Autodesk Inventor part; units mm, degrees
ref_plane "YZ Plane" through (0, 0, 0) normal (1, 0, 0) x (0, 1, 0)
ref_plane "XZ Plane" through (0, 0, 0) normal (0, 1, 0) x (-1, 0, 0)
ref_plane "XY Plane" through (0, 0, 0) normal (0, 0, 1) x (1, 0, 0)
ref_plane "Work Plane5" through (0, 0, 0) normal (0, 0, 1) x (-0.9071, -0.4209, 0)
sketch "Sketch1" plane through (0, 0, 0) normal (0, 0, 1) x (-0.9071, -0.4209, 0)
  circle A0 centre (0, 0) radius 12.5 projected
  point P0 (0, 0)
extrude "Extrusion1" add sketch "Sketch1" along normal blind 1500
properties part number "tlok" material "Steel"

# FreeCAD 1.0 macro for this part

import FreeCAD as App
import Part
import Sketcher

doc = App.newDocument("Part")
body = doc.addObject("PartDesign::Body", "Body")

sketch1 = body.newObject("Sketcher::SketchObject", "Sketch")
sketch1.AttachmentSupport = (doc.getObject("XY_Plane"), [""])
sketch1.MapMode = "FlatFace"
sketch1.addGeometry(Part.Circle(App.Vector(0, 0, 0), App.Vector(0, 0, 1), 12.5), False)
sketch1.addConstraint([
    Sketcher.Constraint("Coincident", 0, 3, -1, 1),
    Sketcher.Constraint("Diameter", 0, 25.0),
])
pad1 = body.newObject("PartDesign::Pad", "Pad")
pad1.Profile = sketch1
pad1.Length = 1500

doc.recompute()
